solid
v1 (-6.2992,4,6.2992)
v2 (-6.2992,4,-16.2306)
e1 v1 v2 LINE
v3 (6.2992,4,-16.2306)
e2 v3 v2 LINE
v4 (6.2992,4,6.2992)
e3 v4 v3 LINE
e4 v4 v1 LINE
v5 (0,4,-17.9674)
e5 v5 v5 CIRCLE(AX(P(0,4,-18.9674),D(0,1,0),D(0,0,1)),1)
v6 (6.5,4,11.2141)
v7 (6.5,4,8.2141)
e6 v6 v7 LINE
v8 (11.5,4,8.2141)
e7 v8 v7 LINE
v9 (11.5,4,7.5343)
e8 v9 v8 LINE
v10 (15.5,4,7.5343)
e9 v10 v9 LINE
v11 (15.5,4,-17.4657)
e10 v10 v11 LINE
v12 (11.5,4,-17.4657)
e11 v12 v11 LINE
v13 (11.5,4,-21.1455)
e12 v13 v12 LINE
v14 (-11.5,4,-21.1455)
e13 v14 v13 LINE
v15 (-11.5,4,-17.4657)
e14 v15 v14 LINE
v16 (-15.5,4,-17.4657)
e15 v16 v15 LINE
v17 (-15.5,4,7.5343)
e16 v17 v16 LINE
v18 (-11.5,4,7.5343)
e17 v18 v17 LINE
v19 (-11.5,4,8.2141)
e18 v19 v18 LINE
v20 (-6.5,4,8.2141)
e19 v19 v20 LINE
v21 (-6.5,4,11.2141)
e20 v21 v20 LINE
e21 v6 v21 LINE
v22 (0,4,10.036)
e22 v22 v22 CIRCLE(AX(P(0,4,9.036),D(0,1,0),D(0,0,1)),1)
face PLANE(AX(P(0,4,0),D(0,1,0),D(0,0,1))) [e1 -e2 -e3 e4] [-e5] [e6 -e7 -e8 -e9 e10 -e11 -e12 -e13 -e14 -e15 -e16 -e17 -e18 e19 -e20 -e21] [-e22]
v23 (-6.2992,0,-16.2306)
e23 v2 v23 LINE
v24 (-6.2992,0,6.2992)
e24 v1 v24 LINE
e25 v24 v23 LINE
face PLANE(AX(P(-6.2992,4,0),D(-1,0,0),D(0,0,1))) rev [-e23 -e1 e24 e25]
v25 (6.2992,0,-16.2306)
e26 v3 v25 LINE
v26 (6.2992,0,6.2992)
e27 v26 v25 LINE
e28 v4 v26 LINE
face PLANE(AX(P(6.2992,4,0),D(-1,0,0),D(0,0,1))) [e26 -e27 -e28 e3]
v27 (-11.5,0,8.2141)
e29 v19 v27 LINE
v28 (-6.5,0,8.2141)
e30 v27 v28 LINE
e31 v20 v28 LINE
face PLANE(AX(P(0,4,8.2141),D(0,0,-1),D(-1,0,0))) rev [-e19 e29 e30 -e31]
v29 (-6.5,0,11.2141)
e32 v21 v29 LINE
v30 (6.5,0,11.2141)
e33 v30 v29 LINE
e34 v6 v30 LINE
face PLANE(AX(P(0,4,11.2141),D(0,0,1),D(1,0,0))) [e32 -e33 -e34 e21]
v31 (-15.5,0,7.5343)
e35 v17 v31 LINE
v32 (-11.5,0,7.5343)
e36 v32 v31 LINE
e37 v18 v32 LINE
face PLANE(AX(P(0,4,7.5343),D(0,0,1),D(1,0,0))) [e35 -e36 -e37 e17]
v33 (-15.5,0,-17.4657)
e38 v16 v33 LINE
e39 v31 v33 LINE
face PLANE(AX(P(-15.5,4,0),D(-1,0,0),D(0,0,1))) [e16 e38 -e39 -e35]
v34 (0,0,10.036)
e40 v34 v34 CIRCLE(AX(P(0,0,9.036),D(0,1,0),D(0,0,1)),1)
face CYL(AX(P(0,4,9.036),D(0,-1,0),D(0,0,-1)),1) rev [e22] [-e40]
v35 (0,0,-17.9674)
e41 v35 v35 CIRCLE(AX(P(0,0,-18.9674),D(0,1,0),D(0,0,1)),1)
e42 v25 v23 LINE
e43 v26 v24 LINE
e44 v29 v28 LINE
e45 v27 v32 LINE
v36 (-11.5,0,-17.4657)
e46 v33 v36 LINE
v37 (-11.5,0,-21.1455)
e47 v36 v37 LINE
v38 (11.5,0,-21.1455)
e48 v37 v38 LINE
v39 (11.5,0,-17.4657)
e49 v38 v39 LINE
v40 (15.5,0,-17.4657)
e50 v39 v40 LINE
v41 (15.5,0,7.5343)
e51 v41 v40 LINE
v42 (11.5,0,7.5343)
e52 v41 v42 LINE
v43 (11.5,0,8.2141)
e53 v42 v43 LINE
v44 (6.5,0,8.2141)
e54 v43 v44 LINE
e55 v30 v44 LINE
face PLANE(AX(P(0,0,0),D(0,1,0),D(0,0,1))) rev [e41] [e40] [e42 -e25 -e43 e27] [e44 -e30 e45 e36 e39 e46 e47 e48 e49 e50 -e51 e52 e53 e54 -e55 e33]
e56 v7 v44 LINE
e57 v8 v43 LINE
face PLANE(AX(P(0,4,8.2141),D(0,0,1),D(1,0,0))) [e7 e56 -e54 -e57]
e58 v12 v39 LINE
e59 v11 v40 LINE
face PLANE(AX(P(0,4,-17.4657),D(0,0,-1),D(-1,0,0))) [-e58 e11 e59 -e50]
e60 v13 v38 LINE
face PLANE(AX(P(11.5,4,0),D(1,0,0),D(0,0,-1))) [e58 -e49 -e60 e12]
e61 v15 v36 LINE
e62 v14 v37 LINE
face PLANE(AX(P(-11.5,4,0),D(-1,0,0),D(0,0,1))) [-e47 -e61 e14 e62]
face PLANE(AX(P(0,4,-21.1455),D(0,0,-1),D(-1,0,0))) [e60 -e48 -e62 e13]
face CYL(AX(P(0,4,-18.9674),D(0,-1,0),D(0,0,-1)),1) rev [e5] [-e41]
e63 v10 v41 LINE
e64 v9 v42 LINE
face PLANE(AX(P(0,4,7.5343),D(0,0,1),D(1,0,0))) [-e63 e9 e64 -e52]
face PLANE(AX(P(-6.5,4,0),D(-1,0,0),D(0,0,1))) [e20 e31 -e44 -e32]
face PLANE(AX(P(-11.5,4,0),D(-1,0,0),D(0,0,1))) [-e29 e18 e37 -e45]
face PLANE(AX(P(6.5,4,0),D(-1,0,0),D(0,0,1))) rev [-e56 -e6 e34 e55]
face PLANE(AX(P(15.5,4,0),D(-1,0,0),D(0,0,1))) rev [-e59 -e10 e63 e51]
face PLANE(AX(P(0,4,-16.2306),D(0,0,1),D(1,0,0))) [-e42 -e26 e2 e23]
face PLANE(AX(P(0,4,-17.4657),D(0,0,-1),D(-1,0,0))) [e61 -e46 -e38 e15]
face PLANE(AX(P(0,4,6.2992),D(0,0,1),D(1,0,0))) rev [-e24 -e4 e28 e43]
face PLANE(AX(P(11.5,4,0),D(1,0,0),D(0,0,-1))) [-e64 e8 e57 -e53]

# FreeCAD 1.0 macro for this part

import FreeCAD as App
import Part
import Sketcher

V = App.Vector
Q = App.Units.Quantity


def add_polygon(sketch, points):
    """Adds a closed chain of lines whose ends are joined by coincident constraints."""
    first, n = sketch.GeometryCount, len(points)
    for a, b in zip(points, points[1:] + points[:1]):
        sketch.addGeometry(Part.LineSegment(App.Vector(*a, 0), App.Vector(*b, 0)), False)
    for i in range(n):
        sketch.addConstraint(Sketcher.Constraint("Coincident", first + i, 2, first + (i + 1) % n, 1))

doc = App.newDocument("Part")
body = doc.addObject("PartDesign::Body", "Body")

sketch1 = doc.addObject("Sketcher::SketchObject", "Sketch")
body.addObject(sketch1)
sketch1.AttachmentSupport = (doc.XZ_Plane, [""])
sketch1.MapMode = "FlatFace"
add_polygon(sketch1, [(-6.5, 11.2), (6.5, 11.2), (6.5, 8.2), (11.5, 8.2), (11.5, 7.5), (15.5, 7.5), (15.5, -17.5), (11.5, -17.5), (11.5, -21.1), (-11.5, -21.1), (-11.5, -17.5), (-15.5, -17.5), (-15.5, 7.5), (-11.5, 7.5), (-11.5, 8.2), (-6.5, 8.2)])
sketch1.addGeometry(Part.Circle(V(0, 9, 0), V(0, 0, 1), 1), False)
add_polygon(sketch1, [(6.3, 6.3), (-6.3, 6.3), (-6.3, -16.2), (6.3, -16.2)])
sketch1.addGeometry(Part.Circle(V(0, -19, 0), V(0, 0, 1), 1), False)
sketch1.addConstraint(Sketcher.Constraint("Horizontal", 0))
sketch1.addConstraint(Sketcher.Constraint("Vertical", 1))
sketch1.addConstraint(Sketcher.Constraint("Horizontal", 2))
sketch1.addConstraint(Sketcher.Constraint("Vertical", 3))
sketch1.addConstraint(Sketcher.Constraint("Horizontal", 4))
sketch1.addConstraint(Sketcher.Constraint("Vertical", 5))
sketch1.addConstraint(Sketcher.Constraint("Horizontal", 6))
sketch1.addConstraint(Sketcher.Constraint("Vertical", 7))
sketch1.addConstraint(Sketcher.Constraint("Horizontal", 8))
sketch1.addConstraint(Sketcher.Constraint("Vertical", 9))
sketch1.addConstraint(Sketcher.Constraint("Horizontal", 10))
sketch1.addConstraint(Sketcher.Constraint("Vertical", 11))
sketch1.addConstraint(Sketcher.Constraint("Horizontal", 12))
sketch1.addConstraint(Sketcher.Constraint("Vertical", 13))
sketch1.addConstraint(Sketcher.Constraint("Horizontal", 14))
sketch1.addConstraint(Sketcher.Constraint("Vertical", 15))
sketch1.addConstraint(Sketcher.Constraint("Horizontal", 17))
sketch1.addConstraint(Sketcher.Constraint("Vertical", 18))
sketch1.addConstraint(Sketcher.Constraint("Horizontal", 19))
sketch1.addConstraint(Sketcher.Constraint("Vertical", 20))
sketch1.addConstraint(Sketcher.Constraint("Equal", 16, 21))
sketch1.addConstraint(Sketcher.Constraint("Symmetric", 6, 2, 9, 2, -2))
sketch1.addConstraint(Sketcher.Constraint("Symmetric", 4, 2, 11, 2, -2))
sketch1.addConstraint(Sketcher.Constraint("Symmetric", 2, 2, 13, 2, -2))
sketch1.addConstraint(Sketcher.Constraint("PointOnObject", 16, 3, -2))
sketch1.addConstraint(Sketcher.Constraint("PointOnObject", 21, 3, -2))
sketch1.addConstraint(Sketcher.Constraint("Vertical", 3, 2, 6, 2))
sketch1.addConstraint(Sketcher.Constraint("Equal", 2, 14))
sketch1.addConstraint(Sketcher.Constraint("Diameter", 16, Q("2 mm")))
sketch1.addConstraint(Sketcher.Constraint("DistanceX", 0, 1, 0, 2, Q("13 mm")))
sketch1.addConstraint(Sketcher.Constraint("DistanceX", 2, 1, 2, 2, Q("5 mm")))
sketch1.addConstraint(Sketcher.Constraint("DistanceX", 4, 1, 4, 2, Q("4 mm")))
sketch1.addConstraint(Sketcher.Constraint("DistanceY", 1, 2, 1, 1, Q("3 mm")))
sketch1.addConstraint(Sketcher.Constraint("DistanceY", 5, 2, 5, 1, Q("25 mm")))
sketch1.addConstraint(Sketcher.Constraint("DistanceX", 17, 2, 17, 1, Q("12.5984 mm")))
sketch1.addConstraint(Sketcher.Constraint("DistanceY", 3, 2, 3, 1, Q("0.6798 mm")))
sketch1.addConstraint(Sketcher.Constraint("DistanceY", 7, 2, 7, 1, Q("3.6798 mm")))
sketch1.addConstraint(Sketcher.Constraint("DistanceY", 18, 2, 18, 1, Q("22.5298 mm")))
sketch1.addConstraint(Sketcher.Constraint("DistanceY", -1, 1, 16, 3, Q("9.036 mm")))
sketch1.addConstraint(Sketcher.Constraint("DistanceY", 21, 3, -1, 1, Q("18.9674 mm")))
sketch1.addConstraint(Sketcher.Constraint("DistanceY", -1, 1, 0, 2, Q("11.2141 mm")))
sketch1.addConstraint(Sketcher.Constraint("DistanceX", 17, 2, -1, 1, Q("6.2992 mm")))
sketch1.addConstraint(Sketcher.Constraint("DistanceY", -1, 1, 17, 2, Q("6.2992 mm")))
pad1 = doc.addObject("PartDesign::Pad", "Pad")
body.addObject(pad1)
pad1.Profile = sketch1
pad1.Length = 4
pad1.Reversed = True

doc.recompute()
